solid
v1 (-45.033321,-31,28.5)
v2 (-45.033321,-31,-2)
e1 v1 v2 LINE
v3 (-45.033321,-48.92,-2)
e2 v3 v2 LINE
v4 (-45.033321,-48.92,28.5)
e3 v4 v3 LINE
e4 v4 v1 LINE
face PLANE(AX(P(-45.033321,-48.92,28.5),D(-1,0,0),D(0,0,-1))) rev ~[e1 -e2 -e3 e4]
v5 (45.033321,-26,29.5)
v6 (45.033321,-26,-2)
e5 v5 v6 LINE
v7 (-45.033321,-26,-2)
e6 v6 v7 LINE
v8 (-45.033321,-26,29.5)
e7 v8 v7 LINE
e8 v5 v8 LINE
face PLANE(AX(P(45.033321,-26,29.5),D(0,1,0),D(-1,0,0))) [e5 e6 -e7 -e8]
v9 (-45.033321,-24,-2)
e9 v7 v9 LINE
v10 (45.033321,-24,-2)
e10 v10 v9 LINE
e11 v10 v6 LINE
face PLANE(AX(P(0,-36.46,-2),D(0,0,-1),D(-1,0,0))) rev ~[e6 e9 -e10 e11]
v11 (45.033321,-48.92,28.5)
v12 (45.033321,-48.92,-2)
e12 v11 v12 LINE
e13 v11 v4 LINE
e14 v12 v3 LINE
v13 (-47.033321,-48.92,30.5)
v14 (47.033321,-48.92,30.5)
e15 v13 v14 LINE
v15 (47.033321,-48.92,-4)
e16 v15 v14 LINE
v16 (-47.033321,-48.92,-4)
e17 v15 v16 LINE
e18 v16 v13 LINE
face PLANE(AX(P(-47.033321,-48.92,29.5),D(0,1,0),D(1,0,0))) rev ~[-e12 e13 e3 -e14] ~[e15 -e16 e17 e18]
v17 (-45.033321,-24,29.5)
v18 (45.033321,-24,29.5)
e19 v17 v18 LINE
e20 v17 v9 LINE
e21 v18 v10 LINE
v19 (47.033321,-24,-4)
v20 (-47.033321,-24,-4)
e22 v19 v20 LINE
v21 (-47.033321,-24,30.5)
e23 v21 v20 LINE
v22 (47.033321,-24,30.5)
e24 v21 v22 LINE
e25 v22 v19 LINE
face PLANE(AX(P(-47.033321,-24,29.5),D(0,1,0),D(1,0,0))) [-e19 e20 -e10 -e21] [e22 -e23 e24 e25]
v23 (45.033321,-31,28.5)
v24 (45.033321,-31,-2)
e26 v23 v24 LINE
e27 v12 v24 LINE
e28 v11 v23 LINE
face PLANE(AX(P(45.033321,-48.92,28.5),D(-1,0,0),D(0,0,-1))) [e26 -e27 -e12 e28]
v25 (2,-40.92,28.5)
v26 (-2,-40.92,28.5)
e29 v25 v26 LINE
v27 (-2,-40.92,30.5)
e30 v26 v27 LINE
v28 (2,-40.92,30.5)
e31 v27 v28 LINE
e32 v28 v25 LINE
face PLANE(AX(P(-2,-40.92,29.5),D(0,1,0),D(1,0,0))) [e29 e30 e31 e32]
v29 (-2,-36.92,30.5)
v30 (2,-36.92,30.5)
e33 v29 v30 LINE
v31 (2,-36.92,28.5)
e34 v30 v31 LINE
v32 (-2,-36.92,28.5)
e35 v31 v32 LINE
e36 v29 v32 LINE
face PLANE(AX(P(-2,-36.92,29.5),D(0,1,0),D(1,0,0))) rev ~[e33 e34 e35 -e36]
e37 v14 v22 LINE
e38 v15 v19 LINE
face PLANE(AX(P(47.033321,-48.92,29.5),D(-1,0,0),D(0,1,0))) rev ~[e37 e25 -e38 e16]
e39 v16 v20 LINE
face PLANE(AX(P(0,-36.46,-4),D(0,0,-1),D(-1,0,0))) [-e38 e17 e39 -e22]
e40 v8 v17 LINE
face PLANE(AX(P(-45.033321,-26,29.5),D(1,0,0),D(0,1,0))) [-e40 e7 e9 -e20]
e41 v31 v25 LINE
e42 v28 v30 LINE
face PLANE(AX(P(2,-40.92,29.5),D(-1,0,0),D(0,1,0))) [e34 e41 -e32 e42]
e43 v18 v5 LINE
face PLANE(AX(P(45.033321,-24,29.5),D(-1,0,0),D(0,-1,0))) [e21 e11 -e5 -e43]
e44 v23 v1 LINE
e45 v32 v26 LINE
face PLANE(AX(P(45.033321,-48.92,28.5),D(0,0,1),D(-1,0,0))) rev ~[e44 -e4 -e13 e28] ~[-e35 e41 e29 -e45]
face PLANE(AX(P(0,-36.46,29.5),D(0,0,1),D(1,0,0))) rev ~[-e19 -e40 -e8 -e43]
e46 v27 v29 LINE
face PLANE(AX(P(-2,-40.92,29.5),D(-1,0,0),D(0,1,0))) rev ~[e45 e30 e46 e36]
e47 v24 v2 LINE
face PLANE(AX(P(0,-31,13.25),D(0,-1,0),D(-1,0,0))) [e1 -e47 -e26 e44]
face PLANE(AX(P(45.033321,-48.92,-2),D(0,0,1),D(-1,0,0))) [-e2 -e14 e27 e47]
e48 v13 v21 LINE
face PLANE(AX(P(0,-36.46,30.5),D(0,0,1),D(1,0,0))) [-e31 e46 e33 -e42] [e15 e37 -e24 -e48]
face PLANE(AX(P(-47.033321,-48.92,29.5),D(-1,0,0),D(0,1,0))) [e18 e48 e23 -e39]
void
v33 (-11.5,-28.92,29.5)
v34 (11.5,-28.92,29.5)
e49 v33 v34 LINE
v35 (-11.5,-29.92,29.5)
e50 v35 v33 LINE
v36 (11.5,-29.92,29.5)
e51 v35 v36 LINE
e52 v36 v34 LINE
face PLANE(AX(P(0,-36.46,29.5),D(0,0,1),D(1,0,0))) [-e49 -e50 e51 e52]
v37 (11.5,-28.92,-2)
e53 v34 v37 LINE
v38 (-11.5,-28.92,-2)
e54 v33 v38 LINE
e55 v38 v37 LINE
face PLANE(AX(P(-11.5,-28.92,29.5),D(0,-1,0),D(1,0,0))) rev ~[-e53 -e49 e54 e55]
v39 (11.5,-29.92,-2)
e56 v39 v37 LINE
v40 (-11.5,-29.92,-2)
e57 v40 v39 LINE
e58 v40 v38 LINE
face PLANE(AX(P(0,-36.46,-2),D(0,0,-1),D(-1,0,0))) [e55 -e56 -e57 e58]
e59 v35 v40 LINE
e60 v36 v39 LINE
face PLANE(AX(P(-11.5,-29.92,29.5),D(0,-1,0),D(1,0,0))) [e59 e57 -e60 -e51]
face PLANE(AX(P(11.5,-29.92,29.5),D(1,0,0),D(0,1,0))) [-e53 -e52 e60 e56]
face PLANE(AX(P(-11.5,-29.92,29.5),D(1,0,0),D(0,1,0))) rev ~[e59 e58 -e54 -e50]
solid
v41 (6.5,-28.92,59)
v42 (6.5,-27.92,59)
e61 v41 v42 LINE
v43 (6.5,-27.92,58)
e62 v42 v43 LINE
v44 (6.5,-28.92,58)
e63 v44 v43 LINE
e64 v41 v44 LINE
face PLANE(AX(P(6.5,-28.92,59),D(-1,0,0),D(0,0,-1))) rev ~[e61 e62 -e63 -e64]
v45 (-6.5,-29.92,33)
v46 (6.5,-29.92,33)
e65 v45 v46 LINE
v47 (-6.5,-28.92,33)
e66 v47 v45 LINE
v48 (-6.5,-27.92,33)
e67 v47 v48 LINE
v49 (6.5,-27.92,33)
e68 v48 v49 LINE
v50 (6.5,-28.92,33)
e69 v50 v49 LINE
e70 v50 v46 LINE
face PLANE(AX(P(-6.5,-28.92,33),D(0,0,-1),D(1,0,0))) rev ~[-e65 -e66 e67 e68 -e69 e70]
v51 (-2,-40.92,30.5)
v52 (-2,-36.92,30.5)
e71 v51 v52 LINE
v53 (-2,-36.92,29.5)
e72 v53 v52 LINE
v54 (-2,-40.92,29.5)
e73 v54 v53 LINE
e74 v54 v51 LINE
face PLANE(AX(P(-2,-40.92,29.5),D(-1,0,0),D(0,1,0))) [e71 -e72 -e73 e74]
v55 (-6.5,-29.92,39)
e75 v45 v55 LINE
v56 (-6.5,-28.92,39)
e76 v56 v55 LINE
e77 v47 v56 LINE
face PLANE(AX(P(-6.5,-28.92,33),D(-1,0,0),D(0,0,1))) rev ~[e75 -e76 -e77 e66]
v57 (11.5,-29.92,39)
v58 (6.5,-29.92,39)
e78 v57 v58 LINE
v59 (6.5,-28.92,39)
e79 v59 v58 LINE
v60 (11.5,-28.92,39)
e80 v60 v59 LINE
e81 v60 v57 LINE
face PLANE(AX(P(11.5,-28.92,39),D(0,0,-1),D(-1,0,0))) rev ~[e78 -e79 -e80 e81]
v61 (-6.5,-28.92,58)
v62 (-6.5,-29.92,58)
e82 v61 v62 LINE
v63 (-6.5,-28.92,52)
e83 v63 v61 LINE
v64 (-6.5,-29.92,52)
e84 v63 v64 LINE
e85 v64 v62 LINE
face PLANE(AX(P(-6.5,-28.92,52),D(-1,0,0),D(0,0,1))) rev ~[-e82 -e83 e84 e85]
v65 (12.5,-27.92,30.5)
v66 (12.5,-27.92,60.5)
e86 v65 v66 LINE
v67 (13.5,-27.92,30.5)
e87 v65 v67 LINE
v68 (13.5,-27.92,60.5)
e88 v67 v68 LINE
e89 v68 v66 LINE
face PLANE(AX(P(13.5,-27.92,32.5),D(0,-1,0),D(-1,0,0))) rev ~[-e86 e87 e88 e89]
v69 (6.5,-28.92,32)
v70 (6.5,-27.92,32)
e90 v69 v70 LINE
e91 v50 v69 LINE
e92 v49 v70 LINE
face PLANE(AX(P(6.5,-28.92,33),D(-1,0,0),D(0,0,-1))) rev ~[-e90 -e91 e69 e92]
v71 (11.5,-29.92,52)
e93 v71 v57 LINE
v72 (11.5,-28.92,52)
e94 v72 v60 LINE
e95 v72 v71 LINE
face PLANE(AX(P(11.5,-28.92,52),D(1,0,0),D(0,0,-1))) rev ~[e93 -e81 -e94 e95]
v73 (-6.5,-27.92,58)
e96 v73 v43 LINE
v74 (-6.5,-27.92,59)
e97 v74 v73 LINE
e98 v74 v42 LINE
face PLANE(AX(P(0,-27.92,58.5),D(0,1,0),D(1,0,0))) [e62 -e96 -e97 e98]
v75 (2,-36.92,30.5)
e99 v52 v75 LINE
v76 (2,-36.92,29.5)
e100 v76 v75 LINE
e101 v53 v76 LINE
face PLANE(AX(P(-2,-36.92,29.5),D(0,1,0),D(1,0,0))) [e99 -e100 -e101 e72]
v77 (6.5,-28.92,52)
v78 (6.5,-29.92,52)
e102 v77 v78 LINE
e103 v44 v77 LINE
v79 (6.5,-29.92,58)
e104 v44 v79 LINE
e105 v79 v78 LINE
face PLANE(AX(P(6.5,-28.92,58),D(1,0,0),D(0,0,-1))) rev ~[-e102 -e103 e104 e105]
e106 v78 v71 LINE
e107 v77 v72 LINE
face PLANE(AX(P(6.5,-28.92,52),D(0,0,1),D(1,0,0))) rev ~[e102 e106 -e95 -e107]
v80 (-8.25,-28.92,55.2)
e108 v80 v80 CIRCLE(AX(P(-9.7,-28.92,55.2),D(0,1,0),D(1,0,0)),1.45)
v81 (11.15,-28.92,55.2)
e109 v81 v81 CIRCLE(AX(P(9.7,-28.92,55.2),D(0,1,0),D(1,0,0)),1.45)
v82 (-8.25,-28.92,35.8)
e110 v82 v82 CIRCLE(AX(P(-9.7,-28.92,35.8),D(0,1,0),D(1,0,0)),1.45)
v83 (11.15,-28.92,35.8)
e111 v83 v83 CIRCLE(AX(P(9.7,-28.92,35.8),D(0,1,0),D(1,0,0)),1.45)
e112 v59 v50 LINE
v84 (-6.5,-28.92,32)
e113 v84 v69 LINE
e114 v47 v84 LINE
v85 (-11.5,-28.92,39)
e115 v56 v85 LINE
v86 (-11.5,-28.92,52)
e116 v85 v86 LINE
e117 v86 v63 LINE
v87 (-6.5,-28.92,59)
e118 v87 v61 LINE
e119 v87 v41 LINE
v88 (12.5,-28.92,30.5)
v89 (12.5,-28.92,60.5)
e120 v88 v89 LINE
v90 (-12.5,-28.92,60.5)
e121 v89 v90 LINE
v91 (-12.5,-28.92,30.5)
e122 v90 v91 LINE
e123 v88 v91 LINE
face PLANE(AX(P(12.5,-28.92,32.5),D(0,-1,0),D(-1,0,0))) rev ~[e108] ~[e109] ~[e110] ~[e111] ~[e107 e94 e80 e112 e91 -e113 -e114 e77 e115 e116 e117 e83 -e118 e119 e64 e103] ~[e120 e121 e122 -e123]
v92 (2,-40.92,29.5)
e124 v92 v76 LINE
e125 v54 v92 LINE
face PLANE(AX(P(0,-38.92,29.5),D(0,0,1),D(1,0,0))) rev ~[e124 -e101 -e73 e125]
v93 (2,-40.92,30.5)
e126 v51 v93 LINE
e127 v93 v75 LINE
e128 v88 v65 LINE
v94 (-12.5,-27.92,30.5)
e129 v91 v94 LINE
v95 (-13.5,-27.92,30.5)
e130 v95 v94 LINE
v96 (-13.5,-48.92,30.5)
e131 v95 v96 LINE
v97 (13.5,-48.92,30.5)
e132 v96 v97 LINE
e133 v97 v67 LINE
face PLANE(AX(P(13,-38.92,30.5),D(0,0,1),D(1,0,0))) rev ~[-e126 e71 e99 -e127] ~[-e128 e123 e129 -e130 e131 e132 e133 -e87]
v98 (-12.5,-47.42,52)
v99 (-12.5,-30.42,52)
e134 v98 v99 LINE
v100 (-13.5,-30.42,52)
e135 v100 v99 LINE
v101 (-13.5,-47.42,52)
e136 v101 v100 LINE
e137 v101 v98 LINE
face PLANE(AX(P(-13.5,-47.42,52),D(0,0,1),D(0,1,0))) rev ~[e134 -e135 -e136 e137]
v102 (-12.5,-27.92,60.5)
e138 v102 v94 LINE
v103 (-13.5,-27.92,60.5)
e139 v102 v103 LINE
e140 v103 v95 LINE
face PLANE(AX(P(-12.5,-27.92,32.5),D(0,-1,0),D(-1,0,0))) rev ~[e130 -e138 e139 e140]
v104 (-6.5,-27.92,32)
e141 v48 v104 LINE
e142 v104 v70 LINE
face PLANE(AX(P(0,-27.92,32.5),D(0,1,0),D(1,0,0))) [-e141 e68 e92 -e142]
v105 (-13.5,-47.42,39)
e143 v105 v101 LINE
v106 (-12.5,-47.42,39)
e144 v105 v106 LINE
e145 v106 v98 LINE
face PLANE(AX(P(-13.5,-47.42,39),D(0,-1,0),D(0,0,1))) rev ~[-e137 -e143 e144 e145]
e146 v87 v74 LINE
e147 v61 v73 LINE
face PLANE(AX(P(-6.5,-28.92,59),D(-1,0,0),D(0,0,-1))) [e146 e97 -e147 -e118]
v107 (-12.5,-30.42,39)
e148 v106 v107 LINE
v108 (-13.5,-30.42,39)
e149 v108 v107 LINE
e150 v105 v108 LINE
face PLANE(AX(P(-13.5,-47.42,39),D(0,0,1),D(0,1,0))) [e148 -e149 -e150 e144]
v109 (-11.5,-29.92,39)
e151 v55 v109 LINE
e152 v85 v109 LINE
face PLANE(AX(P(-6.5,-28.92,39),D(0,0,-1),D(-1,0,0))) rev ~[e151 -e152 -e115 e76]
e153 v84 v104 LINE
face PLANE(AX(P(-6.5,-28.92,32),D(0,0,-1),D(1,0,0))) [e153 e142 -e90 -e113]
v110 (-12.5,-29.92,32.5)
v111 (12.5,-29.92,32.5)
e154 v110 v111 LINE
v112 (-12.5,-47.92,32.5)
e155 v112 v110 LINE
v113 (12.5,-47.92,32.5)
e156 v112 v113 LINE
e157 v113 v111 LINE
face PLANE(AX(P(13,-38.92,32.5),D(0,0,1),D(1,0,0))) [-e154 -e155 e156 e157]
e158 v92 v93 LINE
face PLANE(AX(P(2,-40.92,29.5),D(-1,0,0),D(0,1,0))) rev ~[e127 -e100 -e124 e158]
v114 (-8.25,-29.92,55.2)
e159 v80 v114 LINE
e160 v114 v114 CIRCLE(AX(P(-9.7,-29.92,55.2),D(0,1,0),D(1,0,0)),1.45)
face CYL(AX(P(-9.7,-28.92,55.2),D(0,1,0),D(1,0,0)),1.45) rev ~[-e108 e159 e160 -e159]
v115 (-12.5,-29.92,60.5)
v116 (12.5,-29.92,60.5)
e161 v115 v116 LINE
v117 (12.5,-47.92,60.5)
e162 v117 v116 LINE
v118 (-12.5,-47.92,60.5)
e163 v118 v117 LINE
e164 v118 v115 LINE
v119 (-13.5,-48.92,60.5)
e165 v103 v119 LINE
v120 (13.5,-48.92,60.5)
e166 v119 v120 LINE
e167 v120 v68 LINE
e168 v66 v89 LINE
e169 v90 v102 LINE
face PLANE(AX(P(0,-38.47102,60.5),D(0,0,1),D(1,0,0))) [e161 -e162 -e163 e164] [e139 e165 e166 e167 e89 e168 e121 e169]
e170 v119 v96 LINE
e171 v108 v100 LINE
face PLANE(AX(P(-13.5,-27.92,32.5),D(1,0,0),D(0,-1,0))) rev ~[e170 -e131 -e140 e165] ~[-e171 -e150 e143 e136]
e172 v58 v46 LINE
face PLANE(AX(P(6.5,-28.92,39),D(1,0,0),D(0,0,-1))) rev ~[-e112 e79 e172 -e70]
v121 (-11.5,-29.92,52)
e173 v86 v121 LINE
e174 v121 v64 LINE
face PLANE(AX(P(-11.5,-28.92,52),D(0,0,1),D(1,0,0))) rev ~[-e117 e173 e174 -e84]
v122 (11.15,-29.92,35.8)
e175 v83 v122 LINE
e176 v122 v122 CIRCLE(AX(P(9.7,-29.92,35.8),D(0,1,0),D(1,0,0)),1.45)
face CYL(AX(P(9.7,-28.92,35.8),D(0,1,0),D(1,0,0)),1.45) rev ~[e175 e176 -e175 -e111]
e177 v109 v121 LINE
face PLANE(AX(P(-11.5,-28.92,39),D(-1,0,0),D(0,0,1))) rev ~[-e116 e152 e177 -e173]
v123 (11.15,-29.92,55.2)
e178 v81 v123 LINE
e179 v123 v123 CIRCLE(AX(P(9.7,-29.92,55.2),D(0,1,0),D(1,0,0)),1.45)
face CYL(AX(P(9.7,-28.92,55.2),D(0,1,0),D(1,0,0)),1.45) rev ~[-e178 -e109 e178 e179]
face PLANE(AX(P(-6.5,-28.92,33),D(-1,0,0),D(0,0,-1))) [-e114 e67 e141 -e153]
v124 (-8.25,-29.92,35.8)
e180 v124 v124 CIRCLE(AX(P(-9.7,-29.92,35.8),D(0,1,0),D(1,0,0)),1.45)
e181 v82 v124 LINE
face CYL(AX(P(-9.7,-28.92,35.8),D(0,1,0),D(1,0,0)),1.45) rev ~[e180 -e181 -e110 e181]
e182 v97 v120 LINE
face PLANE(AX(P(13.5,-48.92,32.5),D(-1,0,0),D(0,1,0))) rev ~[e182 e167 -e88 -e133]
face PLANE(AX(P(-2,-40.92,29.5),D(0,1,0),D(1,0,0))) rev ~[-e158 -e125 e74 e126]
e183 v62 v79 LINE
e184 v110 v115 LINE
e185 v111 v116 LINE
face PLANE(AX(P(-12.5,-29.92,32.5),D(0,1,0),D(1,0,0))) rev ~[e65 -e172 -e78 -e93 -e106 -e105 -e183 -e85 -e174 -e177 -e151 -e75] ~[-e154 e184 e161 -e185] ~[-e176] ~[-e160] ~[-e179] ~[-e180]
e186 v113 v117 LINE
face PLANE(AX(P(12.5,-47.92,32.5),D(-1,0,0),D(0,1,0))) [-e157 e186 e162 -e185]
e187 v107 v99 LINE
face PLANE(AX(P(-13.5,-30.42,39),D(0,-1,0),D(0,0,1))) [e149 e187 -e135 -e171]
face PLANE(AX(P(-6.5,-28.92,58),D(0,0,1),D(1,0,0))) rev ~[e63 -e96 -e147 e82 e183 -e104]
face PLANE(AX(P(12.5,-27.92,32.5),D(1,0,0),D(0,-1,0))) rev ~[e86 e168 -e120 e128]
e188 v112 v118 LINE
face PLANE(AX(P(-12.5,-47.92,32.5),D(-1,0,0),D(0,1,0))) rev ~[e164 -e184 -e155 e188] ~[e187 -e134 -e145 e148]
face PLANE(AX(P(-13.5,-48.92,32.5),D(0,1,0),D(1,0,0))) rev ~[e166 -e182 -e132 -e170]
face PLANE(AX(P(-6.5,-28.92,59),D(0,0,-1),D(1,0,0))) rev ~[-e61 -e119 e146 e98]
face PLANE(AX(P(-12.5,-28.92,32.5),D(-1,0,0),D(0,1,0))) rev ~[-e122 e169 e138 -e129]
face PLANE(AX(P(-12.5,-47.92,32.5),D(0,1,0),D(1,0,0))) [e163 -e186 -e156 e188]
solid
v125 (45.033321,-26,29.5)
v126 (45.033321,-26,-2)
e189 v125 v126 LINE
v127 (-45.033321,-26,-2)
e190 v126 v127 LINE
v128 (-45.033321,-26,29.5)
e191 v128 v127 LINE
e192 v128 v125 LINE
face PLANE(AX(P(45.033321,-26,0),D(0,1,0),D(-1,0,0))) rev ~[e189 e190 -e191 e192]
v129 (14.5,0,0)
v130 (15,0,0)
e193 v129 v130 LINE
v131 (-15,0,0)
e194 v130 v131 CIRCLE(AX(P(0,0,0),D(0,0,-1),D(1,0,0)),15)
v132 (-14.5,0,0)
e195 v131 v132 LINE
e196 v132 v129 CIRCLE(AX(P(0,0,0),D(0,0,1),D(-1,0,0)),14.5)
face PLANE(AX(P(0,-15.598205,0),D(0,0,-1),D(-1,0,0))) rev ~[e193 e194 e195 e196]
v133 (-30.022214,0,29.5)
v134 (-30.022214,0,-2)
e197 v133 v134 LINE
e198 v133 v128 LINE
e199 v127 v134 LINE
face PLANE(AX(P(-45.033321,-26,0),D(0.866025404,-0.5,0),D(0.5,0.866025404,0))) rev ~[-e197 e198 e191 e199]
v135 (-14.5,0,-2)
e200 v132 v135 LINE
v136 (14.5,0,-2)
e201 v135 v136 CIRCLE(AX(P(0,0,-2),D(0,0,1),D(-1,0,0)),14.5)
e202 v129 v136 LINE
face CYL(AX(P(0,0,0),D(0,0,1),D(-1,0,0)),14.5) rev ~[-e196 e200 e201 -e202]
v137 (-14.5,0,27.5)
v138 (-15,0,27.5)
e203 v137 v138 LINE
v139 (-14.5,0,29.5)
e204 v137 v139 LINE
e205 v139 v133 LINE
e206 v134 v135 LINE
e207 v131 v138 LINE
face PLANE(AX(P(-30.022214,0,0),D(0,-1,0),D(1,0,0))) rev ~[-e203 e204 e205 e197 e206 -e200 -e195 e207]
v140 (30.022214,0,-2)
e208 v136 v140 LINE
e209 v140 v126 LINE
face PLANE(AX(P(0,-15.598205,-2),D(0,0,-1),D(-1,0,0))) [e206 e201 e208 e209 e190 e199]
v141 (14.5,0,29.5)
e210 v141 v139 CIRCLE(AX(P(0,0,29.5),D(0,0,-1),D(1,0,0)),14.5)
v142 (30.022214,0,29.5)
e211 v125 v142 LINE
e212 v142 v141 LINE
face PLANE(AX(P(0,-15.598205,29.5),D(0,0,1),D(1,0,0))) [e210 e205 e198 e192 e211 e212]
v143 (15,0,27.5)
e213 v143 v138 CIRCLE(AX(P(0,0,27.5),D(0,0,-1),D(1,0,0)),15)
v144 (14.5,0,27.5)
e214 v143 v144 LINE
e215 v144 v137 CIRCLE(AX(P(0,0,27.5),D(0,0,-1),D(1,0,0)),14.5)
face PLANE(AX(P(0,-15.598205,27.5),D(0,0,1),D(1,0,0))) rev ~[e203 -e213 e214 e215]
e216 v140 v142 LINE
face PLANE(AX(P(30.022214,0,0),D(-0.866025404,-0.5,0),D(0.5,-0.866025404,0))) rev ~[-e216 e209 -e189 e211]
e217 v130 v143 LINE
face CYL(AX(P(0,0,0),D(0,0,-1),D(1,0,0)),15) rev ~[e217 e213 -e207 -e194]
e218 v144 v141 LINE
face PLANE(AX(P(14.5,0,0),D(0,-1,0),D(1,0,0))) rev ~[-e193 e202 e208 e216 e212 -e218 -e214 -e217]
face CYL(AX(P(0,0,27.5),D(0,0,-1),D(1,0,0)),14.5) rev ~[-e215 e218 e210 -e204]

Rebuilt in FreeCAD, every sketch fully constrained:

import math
import FreeCAD as App
import Part
import Sketcher
Q = App.Units.Quantity


def add_polygon(sketch, points):
    """Adds a closed chain of lines whose ends are joined by coincident constraints."""
    first, n = sketch.GeometryCount, len(points)
    for a, b in zip(points, points[1:] + points[:1]):
        sketch.addGeometry(Part.LineSegment(App.Vector(*a, 0), App.Vector(*b, 0)), False)
    for i in range(n):
        sketch.addConstraint(Sketcher.Constraint("Coincident", first + i, 2, first + (i + 1) % n, 1))

doc = App.newDocument("Part")
body = doc.addObject("PartDesign::Body", "Body")

sketch1 = body.newObject("Sketcher::SketchObject", "Sketch")
sketch1.AttachmentSupport = (doc.getObject("XY_Plane"), [""])
sketch1.MapMode = "FlatFace"
sketch1.addGeometry([
    Part.LineSegment(App.Vector(-45.033321, -26, 0), App.Vector(45.033321, -26, 0)),
    Part.LineSegment(App.Vector(45.033321, -26, 0), App.Vector(30.022214, 0, 0)),
    Part.LineSegment(App.Vector(30.022214, 0, 0), App.Vector(15, 0, 0)),
    Part.ArcOfCircle(Part.Circle(App.Vector(0, 0, 0), App.Vector(0, 0, 1), 15), math.radians(180), math.radians(360)),
    Part.LineSegment(App.Vector(-15, 0, 0), App.Vector(-30.022214, 0, 0)),
    Part.LineSegment(App.Vector(-30.022214, 0, 0), App.Vector(-45.033321, -26, 0)),
], False)
sketch1.addConstraint([
    Sketcher.Constraint("Coincident", 0, 2, 1, 1),
    Sketcher.Constraint("Coincident", 1, 2, 2, 1),
    Sketcher.Constraint("Coincident", 2, 2, 3, 2),
    Sketcher.Constraint("Coincident", 3, 1, 4, 1),
    Sketcher.Constraint("Coincident", 4, 2, 5, 1),
    Sketcher.Constraint("Coincident", 5, 2, 0, 1),
    Sketcher.Constraint("Horizontal", 0),
    Sketcher.Constraint("Horizontal", 2),
    Sketcher.Constraint("Horizontal", 4),
    Sketcher.Constraint("Coincident", 3, 3, -1, 1),
    Sketcher.Constraint("Symmetric", 1, 2, 4, 2, -1, 1),
    Sketcher.Constraint("PointOnObject", 1, 2, -1),
    Sketcher.Constraint("Equal", 1, 5),
    Sketcher.Constraint("Radius", 3, 15.0),
    Sketcher.Constraint("Angle", 1, Q("120 deg")),
    Sketcher.Constraint("DistanceY", 0, 2, -1, 1, 26.0),
    Sketcher.Constraint("DistanceX", 0, 1, 0, 2, 90.066642),
])
pad1 = body.newObject("PartDesign::Pad", "Pad")
pad1.Profile = sketch1
pad1.Length = 27.5

sketch2 = body.newObject("Sketcher::SketchObject", "Sketch001")
sketch2.AttachmentSupport = (doc.getObject("XY_Plane"), [""])
sketch2.MapMode = "FlatFace"
sketch2.AttachmentOffset = App.Placement(App.Vector(0, 0, 27.5), App.Rotation())
sketch2.addGeometry([
    Part.LineSegment(App.Vector(45.033321, -26, 0), App.Vector(30.022214, 0, 0)),
    Part.LineSegment(App.Vector(30.022214, 0, 0), App.Vector(14.5, 0, 0)),
    Part.ArcOfCircle(Part.Circle(App.Vector(0, 0, 0), App.Vector(0, 0, 1), 14.5), math.radians(180), math.radians(360)),
    Part.LineSegment(App.Vector(-14.5, 0, 0), App.Vector(-30.022214, 0, 0)),
    Part.LineSegment(App.Vector(-30.022214, 0, 0), App.Vector(-45.033321, -26, 0)),
    Part.LineSegment(App.Vector(-45.033321, -26, 0), App.Vector(45.033321, -26, 0)),
], False)
sketch2.addConstraint([
    Sketcher.Constraint("Coincident", 0, 2, 1, 1),
    Sketcher.Constraint("Coincident", 1, 2, 2, 2),
    Sketcher.Constraint("Coincident", 2, 1, 3, 1),
    Sketcher.Constraint("Coincident", 3, 2, 4, 1),
    Sketcher.Constraint("Coincident", 4, 2, 5, 1),
    Sketcher.Constraint("Coincident", 5, 2, 0, 1),
    Sketcher.Constraint("Horizontal", 1),
    Sketcher.Constraint("Horizontal", 3),
    Sketcher.Constraint("Horizontal", 5),
    Sketcher.Constraint("Coincident", 2, 3, -1, 1),
    Sketcher.Constraint("Symmetric", 0, 2, 3, 2, -1, 1),
    Sketcher.Constraint("PointOnObject", 0, 2, -1),
    Sketcher.Constraint("Equal", 0, 4),
    Sketcher.Constraint("Radius", 2, 14.5),
    Sketcher.Constraint("Angle", 0, Q("120 deg")),
    Sketcher.Constraint("DistanceY", 4, 2, -1, 1, 26.0),
    Sketcher.Constraint("DistanceX", 5, 1, 5, 2, 90.066642),
])
pad2 = body.newObject("PartDesign::Pad", "Pad001")
pad2.Profile = sketch2
pad2.Length = 2

sketch3 = body.newObject("Sketcher::SketchObject", "Sketch002")
sketch3.AttachmentSupport = (doc.getObject("XY_Plane"), [""])
sketch3.MapMode = "FlatFace"
sketch3.addGeometry([
    Part.LineSegment(App.Vector(30.022214, 0, 0), App.Vector(45.033321, -26, 0)),
    Part.LineSegment(App.Vector(45.033321, -26, 0), App.Vector(-45.033321, -26, 0)),
    Part.LineSegment(App.Vector(-45.033321, -26, 0), App.Vector(-30.022214, 0, 0)),
    Part.LineSegment(App.Vector(-30.022214, 0, 0), App.Vector(-14.5, 0, 0)),
    Part.ArcOfCircle(Part.Circle(App.Vector(0, 0, 0), App.Vector(0, 0, 1), 14.5), math.radians(180), math.radians(360)),
    Part.LineSegment(App.Vector(14.5, 0, 0), App.Vector(30.022214, 0, 0)),
], False)
sketch3.addConstraint([
    Sketcher.Constraint("Coincident", 0, 2, 1, 1),
    Sketcher.Constraint("Coincident", 1, 2, 2, 1),
    Sketcher.Constraint("Coincident", 2, 2, 3, 1),
    Sketcher.Constraint("Coincident", 3, 2, 4, 1),
    Sketcher.Constraint("Coincident", 4, 2, 5, 1),
    Sketcher.Constraint("Coincident", 5, 2, 0, 1),
    Sketcher.Constraint("Horizontal", 1),
    Sketcher.Constraint("Horizontal", 3),
    Sketcher.Constraint("Horizontal", 5),
    Sketcher.Constraint("Coincident", 4, 3, -1, 1),
    Sketcher.Constraint("Symmetric", 2, 2, 5, 2, -1, 1),
    Sketcher.Constraint("PointOnObject", 2, 2, -1),
    Sketcher.Constraint("Equal", 0, 2),
    Sketcher.Constraint("Radius", 4, 14.5),
    Sketcher.Constraint("Angle", 0, Q("-60 deg")),
    Sketcher.Constraint("DistanceY", 0, 2, -1, 1, 26.0),
    Sketcher.Constraint("DistanceX", 1, 2, 1, 1, 90.066642),
])
pad3 = body.newObject("PartDesign::Pad", "Pad002")
pad3.Profile = sketch3
pad3.Length = 2
pad3.Reversed = True
body2 = doc.addObject("PartDesign::Body", "Body001")

sketch4 = body2.newObject("Sketcher::SketchObject", "Sketch003")
sketch4.AttachmentSupport = (doc.getObject("XY_Plane001"), [""])
sketch4.MapMode = "FlatFace"
sketch4.AttachmentOffset = App.Placement(App.Vector(0, 0, 29.5), App.Rotation())
add_polygon(sketch4, [(47.033321, -48.92), (47.033321, -24), (45.033321, -24), (45.033321, -26), (-45.033321, -26), (-45.033321, -24), (-47.033321, -24), (-47.033321, -48.92)])
add_polygon(sketch4, [(2, -40.92), (-2, -40.92), (-2, -36.92), (2, -36.92)])
add_polygon(sketch4, [(11.5, -29.92), (-11.5, -29.92), (-11.5, -28.92), (11.5, -28.92)])
sketch4.addConstraint([
    Sketcher.Constraint("Vertical", 0),
    Sketcher.Constraint("Horizontal", 1),
    Sketcher.Constraint("Vertical", 2),
    Sketcher.Constraint("Horizontal", 3),
    Sketcher.Constraint("Vertical", 4),
    Sketcher.Constraint("Horizontal", 5),
    Sketcher.Constraint("Vertical", 6),
    Sketcher.Constraint("Horizontal", 7),
    Sketcher.Constraint("Horizontal", 8),
    Sketcher.Constraint("Vertical", 9),
    Sketcher.Constraint("Horizontal", 10),
    Sketcher.Constraint("Vertical", 11),
    Sketcher.Constraint("Horizontal", 12),
    Sketcher.Constraint("Vertical", 13),
    Sketcher.Constraint("Horizontal", 14),
    Sketcher.Constraint("Vertical", 15),
    Sketcher.Constraint("Symmetric", 1, 2, 4, 2, -2),
    Sketcher.Constraint("Equal", 1, 5),
    Sketcher.Constraint("Equal", 5, 2),
    Sketcher.Constraint("Equal", 10, 9),
    Sketcher.Constraint("DistanceX", 1, 2, 1, 1, 2.0),
    Sketcher.Constraint("DistanceX", 8, 2, 8, 1, 4.0),
    Sketcher.Constraint("DistanceX", 12, 2, 12, 1, 23.0),
    Sketcher.Constraint("DistanceY", 13, 1, 13, 2, 1.0),
    Sketcher.Constraint("DistanceY", 0, 2, -1, 1, 24.0),
    Sketcher.Constraint("DistanceX", 8, 2, -1, 1, 2.0),
    Sketcher.Constraint("DistanceY", 6, 2, 8, 2, 8.0),
    Sketcher.Constraint("DistanceY", 9, 2, 12, 2, 7.0),
    Sketcher.Constraint("DistanceY", 0, 1, 0, 2, 24.92),
    Sketcher.Constraint("DistanceX", 12, 2, -1, 1, 11.5),
    Sketcher.Constraint("DistanceX", 3, 2, 3, 1, 90.066642),
])
pad4 = body2.newObject("PartDesign::Pad", "Pad003")
pad4.Profile = sketch4
pad4.Length = 31.5
pad4.Reversed = True

sketch5 = body2.newObject("Sketcher::SketchObject", "Sketch004")
sketch5.AttachmentSupport = (doc.getObject("XY_Plane001"), [""])
sketch5.MapMode = "FlatFace"
sketch5.AttachmentOffset = App.Placement(App.Vector(0, 0, -2), App.Rotation())
add_polygon(sketch5, [(47.033321, -24), (47.033321, -48.92), (-47.033321, -48.92), (-47.033321, -24)])
sketch5.addConstraint([
    Sketcher.Constraint("Vertical", 0),
    Sketcher.Constraint("Horizontal", 1),
    Sketcher.Constraint("Vertical", 2),
    Sketcher.Constraint("Horizontal", 3),
    Sketcher.Constraint("DistanceY", 2, 2, -1, 1, 24.0),
    Sketcher.Constraint("DistanceY", 0, 2, 0, 1, 24.92),
    Sketcher.Constraint("DistanceX", 1, 2, 1, 1, 94.066642),
    Sketcher.Constraint("DistanceX", -1, 1, 0, 2, 47.033321),
])
pad5 = body2.newObject("PartDesign::Pad", "Pad004")
pad5.Profile = sketch5
pad5.Length = 2
pad5.Reversed = True

sketch6 = body2.newObject("Sketcher::SketchObject", "Sketch005")
sketch6.AttachmentSupport = (doc.getObject("XY_Plane001"), [""])
sketch6.MapMode = "FlatFace"
sketch6.AttachmentOffset = App.Placement(App.Vector(0, 0, 29.5), App.Rotation())
add_polygon(sketch6, [(-47.033321, -24), (-47.033321, -48.92), (47.033321, -48.92), (47.033321, -24)])
sketch6.addConstraint([
    Sketcher.Constraint("Vertical", 0),
    Sketcher.Constraint("Horizontal", 1),
    Sketcher.Constraint("Vertical", 2),
    Sketcher.Constraint("Horizontal", 3),
    Sketcher.Constraint("DistanceY", 2, 2, -1, 1, 24.0),
    Sketcher.Constraint("DistanceY", 0, 2, 0, 1, 24.92),
    Sketcher.Constraint("DistanceX", 1, 1, 1, 2, 94.066642),
    Sketcher.Constraint("DistanceX", 0, 2, -1, 1, 47.033321),
])
pad6 = body2.newObject("PartDesign::Pad", "Pad005")
pad6.Profile = sketch6
pad6.Length = 1

sketch7 = body2.newObject("Sketcher::SketchObject", "Sketch006")
sketch7.AttachmentSupport = (doc.getObject("XZ_Plane001"), [""])
sketch7.MapMode = "FlatFace"
sketch7.AttachmentOffset = App.Placement(App.Vector(0, 0, 48.92), App.Rotation())
add_polygon(sketch7, [(45.033321, -2), (45.033321, 28.5), (-45.033321, 28.5), (-45.033321, -2)])
sketch7.addConstraint([
    Sketcher.Constraint("Vertical", 0),
    Sketcher.Constraint("Horizontal", 1),
    Sketcher.Constraint("Vertical", 2),
    Sketcher.Constraint("Horizontal", 3),
    Sketcher.Constraint("DistanceY", 0, 1, 0, 2, 30.5),
    Sketcher.Constraint("DistanceY", 2, 2, -1, 1, 2.0),
    Sketcher.Constraint("DistanceX", 1, 2, 1, 1, 90.066642),
    Sketcher.Constraint("DistanceX", -1, 1, 0, 2, 45.033321),
])
pocket1 = body2.newObject("PartDesign::Pocket", "Pocket")
pocket1.Profile = sketch7
pocket1.Length = 17.92

sketch8 = body2.newObject("Sketcher::SketchObject", "Sketch007")
sketch8.AttachmentSupport = (doc.getObject("XY_Plane001"), [""])
sketch8.MapMode = "FlatFace"
sketch8.AttachmentOffset = App.Placement(App.Vector(0, 0, 29.5), App.Rotation())
add_polygon(sketch8, [(-2, -36.92), (-2, -40.92), (2, -40.92), (2, -36.92)])
sketch8.addConstraint([
    Sketcher.Constraint("Vertical", 0),
    Sketcher.Constraint("Horizontal", 1),
    Sketcher.Constraint("Vertical", 2),
    Sketcher.Constraint("Horizontal", 3),
    Sketcher.Constraint("Equal", 3, 0),
    Sketcher.Constraint("DistanceX", 1, 1, 1, 2, 4.0),
    Sketcher.Constraint("DistanceX", 0, 2, -1, 1, 2.0),
    Sketcher.Constraint("DistanceY", 0, 2, -1, 1, 40.92),
])
pocket2 = body2.newObject("PartDesign::Pocket", "Pocket001")
pocket2.Profile = sketch8
pocket2.Length = 1
pocket2.Reversed = True
body3 = doc.addObject("PartDesign::Body", "Body002")

sketch9 = body3.newObject("Sketcher::SketchObject", "Sketch008")
sketch9.AttachmentSupport = (doc.getObject("XY_Plane002"), [""])
sketch9.MapMode = "FlatFace"
sketch9.AttachmentOffset = App.Placement(App.Vector(0, 0, 30.5), App.Rotation())
add_polygon(sketch9, [(13.5, -48.92), (13.5, -27.92), (12.5, -27.92), (12.5, -28.92), (-12.5, -28.92), (-12.5, -27.92), (-13.5, -27.92), (-13.5, -48.92)])
sketch9.addConstraint([
    Sketcher.Constraint("Vertical", 0),
    Sketcher.Constraint("Horizontal", 1),
    Sketcher.Constraint("Vertical", 2),
    Sketcher.Constraint("Horizontal", 3),
    Sketcher.Constraint("Vertical", 4),
    Sketcher.Constraint("Horizontal", 5),
    Sketcher.Constraint("Vertical", 6),
    Sketcher.Constraint("Horizontal", 7),
    Sketcher.Constraint("Symmetric", 1, 2, 4, 2, -2),
    Sketcher.Constraint("Equal", 1, 5),
    Sketcher.Constraint("Equal", 5, 2),
    Sketcher.Constraint("DistanceX", 1, 2, 1, 1, 1.0),
    Sketcher.Constraint("DistanceX", 3, 2, 3, 1, 25.0),
    Sketcher.Constraint("DistanceY", 0, 1, 0, 2, 21.0),
    Sketcher.Constraint("DistanceY", 0, 2, -1, 1, 27.92),
])
pad7 = body3.newObject("PartDesign::Pad", "Pad006")
pad7.Profile = sketch9
pad7.Length = 2

sketch10 = body3.newObject("Sketcher::SketchObject", "Sketch009")
sketch10.AttachmentSupport = (doc.getObject("XY_Plane002"), [""])
sketch10.MapMode = "FlatFace"
sketch10.AttachmentOffset = App.Placement(App.Vector(0, 0, 29.5), App.Rotation())
add_polygon(sketch10, [(-2, -36.92), (-2, -40.92), (2, -40.92), (2, -36.92)])
sketch10.addConstraint([
    Sketcher.Constraint("Vertical", 0),
    Sketcher.Constraint("Horizontal", 1),
    Sketcher.Constraint("Vertical", 2),
    Sketcher.Constraint("Horizontal", 3),
    Sketcher.Constraint("Equal", 3, 0),
    Sketcher.Constraint("DistanceX", 1, 1, 1, 2, 4.0),
    Sketcher.Constraint("DistanceX", 0, 2, -1, 1, 2.0),
    Sketcher.Constraint("DistanceY", 0, 2, -1, 1, 40.92),
])
pad8 = body3.newObject("PartDesign::Pad", "Pad007")
pad8.Profile = sketch10
pad8.Length = 1

sketch11 = body3.newObject("Sketcher::SketchObject", "Sketch010")
sketch11.AttachmentSupport = (doc.getObject("XY_Plane002"), [""])
sketch11.MapMode = "FlatFace"
sketch11.AttachmentOffset = App.Placement(App.Vector(0, 0, 32.5), App.Rotation())
add_polygon(sketch11, [(-13.5, -48.92), (13.5, -48.92), (13.5, -27.92), (12.5, -27.92), (12.5, -28.92), (-12.5, -28.92), (-12.5, -27.92), (-13.5, -27.92)])
add_polygon(sketch11, [(12.5, -47.92), (-12.5, -47.92), (-12.5, -29.92), (12.5, -29.92)])
sketch11.addConstraint([
    Sketcher.Constraint("Horizontal", 0),
    Sketcher.Constraint("Vertical", 1),
    Sketcher.Constraint("Horizontal", 2),
    Sketcher.Constraint("Vertical", 3),
    Sketcher.Constraint("Horizontal", 4),
    Sketcher.Constraint("Vertical", 5),
    Sketcher.Constraint("Horizontal", 6),
    Sketcher.Constraint("Vertical", 7),
    Sketcher.Constraint("Horizontal", 8),
    Sketcher.Constraint("Vertical", 9),
    Sketcher.Constraint("Horizontal", 10),
    Sketcher.Constraint("Vertical", 11),
    Sketcher.Constraint("Symmetric", 2, 2, 5, 2, -2),
    Sketcher.Constraint("Vertical", 5, 2, 8, 2),
    Sketcher.Constraint("Vertical", 3, 2, 10, 2),
    Sketcher.Constraint("Equal", 2, 6),
    Sketcher.Constraint("Equal", 6, 3),
    Sketcher.Constraint("DistanceX", 0, 1, 0, 2, 27.0),
    Sketcher.Constraint("DistanceX", 2, 2, 2, 1, 1.0),
    Sketcher.Constraint("DistanceY", 1, 1, 1, 2, 21.0),
    Sketcher.Constraint("DistanceY", 9, 1, 9, 2, 18.0),
    Sketcher.Constraint("DistanceY", 7, 2, 8, 2, 1.0),
    Sketcher.Constraint("DistanceY", 0, 2, -1, 1, 48.92),
])
pad9 = body3.newObject("PartDesign::Pad", "Pad008")
pad9.Profile = sketch11
pad9.Length = 28

sketch12 = body3.newObject("Sketcher::SketchObject", "Sketch011")
sketch12.AttachmentSupport = (doc.getObject("XZ_Plane002"), [""])
sketch12.MapMode = "FlatFace"
sketch12.AttachmentOffset = App.Placement(App.Vector(0, 0, 28.92), App.Rotation())
add_polygon(sketch12, [(-6.5, 39), (-11.5, 39), (-11.5, 52), (-6.5, 52), (-6.5, 58), (6.5, 58), (6.5, 52), (11.5, 52), (11.5, 39), (6.5, 39), (6.5, 33), (-6.5, 33)])
sketch12.addGeometry(Part.Circle(App.Vector(9.7, 55.2, 0), App.Vector(0, 0, 1), 1.45), False)
sketch12.addGeometry(Part.Circle(App.Vector(-9.7, 55.2, 0), App.Vector(0, 0, 1), 1.45), False)
sketch12.addGeometry(Part.Circle(App.Vector(-9.7, 35.8, 0), App.Vector(0, 0, 1), 1.45), False)
sketch12.addGeometry(Part.Circle(App.Vector(9.7, 35.8, 0), App.Vector(0, 0, 1), 1.45), False)
sketch12.addConstraint([
    Sketcher.Constraint("Horizontal", 0),
    Sketcher.Constraint("Vertical", 1),
    Sketcher.Constraint("Horizontal", 2),
    Sketcher.Constraint("Vertical", 3),
    Sketcher.Constraint("Horizontal", 4),
    Sketcher.Constraint("Vertical", 5),
    Sketcher.Constraint("Horizontal", 6),
    Sketcher.Constraint("Vertical", 7),
    Sketcher.Constraint("Horizontal", 8),
    Sketcher.Constraint("Vertical", 9),
    Sketcher.Constraint("Horizontal", 10),
    Sketcher.Constraint("Vertical", 11),
    Sketcher.Constraint("Equal", 12, 13),
    Sketcher.Constraint("Equal", 13, 14),
    Sketcher.Constraint("Equal", 14, 15),
    Sketcher.Constraint("Symmetric", 12, 3, 13, 3, -2),
    Sketcher.Constraint("Symmetric", 14, 3, 15, 3, -2),
    Sketcher.Constraint("Symmetric", 2, 2, 5, 2, -2),
    Sketcher.Constraint("Symmetric", 0, 2, 7, 2, -2),
    Sketcher.Constraint("Vertical", 13, 3, 14, 3),
    Sketcher.Constraint("Vertical", 5, 2, 8, 2),
    Sketcher.Constraint("Vertical", 3, 2, 10, 2),
    Sketcher.Constraint("Equal", 10, 1),
    Sketcher.Constraint("Equal", 5, 9),
    Sketcher.Constraint("Diameter", 12, 2.9),
    Sketcher.Constraint("DistanceX", 0, 2, 0, 1, 5.0),
    Sketcher.Constraint("DistanceX", 4, 1, 4, 2, 13.0),
    Sketcher.Constraint("DistanceY", 3, 1, 3, 2, 6.0),
    Sketcher.Constraint("DistanceY", -1, 1, 0, 2, 39.0),
    Sketcher.Constraint("DistanceX", -1, 1, 12, 3, 9.7),
    Sketcher.Constraint("DistanceY", -1, 1, 12, 3, 55.2),
    Sketcher.Constraint("DistanceY", -1, 1, 14, 3, 35.8),
])
pocket3 = body3.newObject("PartDesign::Pocket", "Pocket002")
pocket3.Profile = sketch12
pocket3.Length = 1
pocket3.Reversed = True

sketch13 = body3.newObject("Sketcher::SketchObject", "Sketch012")
sketch13.AttachmentSupport = (doc.getObject("XZ_Plane002"), [""])
sketch13.MapMode = "FlatFace"
sketch13.AttachmentOffset = App.Placement(App.Vector(0, 0, 28.92), App.Rotation())
add_polygon(sketch13, [(-6.5, 32), (-6.5, 33), (6.5, 33), (6.5, 32)])
add_polygon(sketch13, [(-6.5, 58), (-6.5, 59), (6.5, 59), (6.5, 58)])
sketch13.addConstraint([
    Sketcher.Constraint("Vertical", 0),
    Sketcher.Constraint("Horizontal", 1),
    Sketcher.Constraint("Vertical", 2),
    Sketcher.Constraint("Horizontal", 3),
    Sketcher.Constraint("Vertical", 4),
    Sketcher.Constraint("Horizontal", 5),
    Sketcher.Constraint("Vertical", 6),
    Sketcher.Constraint("Horizontal", 7),
    Sketcher.Constraint("Vertical", 3, 2, 4, 2),
    Sketcher.Constraint("Vertical", 2, 2, 5, 2),
    Sketcher.Constraint("Equal", 2, 4),
    Sketcher.Constraint("DistanceX", 1, 1, 1, 2, 13.0),
    Sketcher.Constraint("DistanceY", 0, 1, 0, 2, 1.0),
    Sketcher.Constraint("DistanceY", -1, 1, 0, 2, 33.0),
    Sketcher.Constraint("DistanceY", -1, 1, 4, 2, 59.0),
    Sketcher.Constraint("DistanceX", 0, 2, -1, 1, 6.5),
])
pad10 = body3.newObject("PartDesign::Pad", "Pad009")
pad10.Profile = sketch13
pad10.Length = 1
pad10.Reversed = True

sketch14 = body3.newObject("Sketcher::SketchObject", "Sketch013")
sketch14.AttachmentSupport = (doc.getObject("YZ_Plane002"), [""])
sketch14.MapMode = "FlatFace"
sketch14.AttachmentOffset = App.Placement(App.Vector(0, 0, -13.5), App.Rotation())
add_polygon(sketch14, [(-30.42, 39), (-47.42, 39), (-47.42, 52), (-30.42, 52)])
sketch14.addConstraint([
    Sketcher.Constraint("Horizontal", 0),
    Sketcher.Constraint("Vertical", 1),
    Sketcher.Constraint("Horizontal", 2),
    Sketcher.Constraint("Vertical", 3),
    Sketcher.Constraint("DistanceX", 0, 2, 0, 1, 17.0),
    Sketcher.Constraint("DistanceY", 1, 1, 1, 2, 13.0),
    Sketcher.Constraint("DistanceY", -1, 1, 0, 2, 39.0),
    Sketcher.Constraint("DistanceX", 0, 2, -1, 1, 47.42),
])
pocket4 = body3.newObject("PartDesign::Pocket", "Pocket003")
pocket4.Profile = sketch14
pocket4.Length = 1
pocket4.Reversed = True

doc.recompute()
